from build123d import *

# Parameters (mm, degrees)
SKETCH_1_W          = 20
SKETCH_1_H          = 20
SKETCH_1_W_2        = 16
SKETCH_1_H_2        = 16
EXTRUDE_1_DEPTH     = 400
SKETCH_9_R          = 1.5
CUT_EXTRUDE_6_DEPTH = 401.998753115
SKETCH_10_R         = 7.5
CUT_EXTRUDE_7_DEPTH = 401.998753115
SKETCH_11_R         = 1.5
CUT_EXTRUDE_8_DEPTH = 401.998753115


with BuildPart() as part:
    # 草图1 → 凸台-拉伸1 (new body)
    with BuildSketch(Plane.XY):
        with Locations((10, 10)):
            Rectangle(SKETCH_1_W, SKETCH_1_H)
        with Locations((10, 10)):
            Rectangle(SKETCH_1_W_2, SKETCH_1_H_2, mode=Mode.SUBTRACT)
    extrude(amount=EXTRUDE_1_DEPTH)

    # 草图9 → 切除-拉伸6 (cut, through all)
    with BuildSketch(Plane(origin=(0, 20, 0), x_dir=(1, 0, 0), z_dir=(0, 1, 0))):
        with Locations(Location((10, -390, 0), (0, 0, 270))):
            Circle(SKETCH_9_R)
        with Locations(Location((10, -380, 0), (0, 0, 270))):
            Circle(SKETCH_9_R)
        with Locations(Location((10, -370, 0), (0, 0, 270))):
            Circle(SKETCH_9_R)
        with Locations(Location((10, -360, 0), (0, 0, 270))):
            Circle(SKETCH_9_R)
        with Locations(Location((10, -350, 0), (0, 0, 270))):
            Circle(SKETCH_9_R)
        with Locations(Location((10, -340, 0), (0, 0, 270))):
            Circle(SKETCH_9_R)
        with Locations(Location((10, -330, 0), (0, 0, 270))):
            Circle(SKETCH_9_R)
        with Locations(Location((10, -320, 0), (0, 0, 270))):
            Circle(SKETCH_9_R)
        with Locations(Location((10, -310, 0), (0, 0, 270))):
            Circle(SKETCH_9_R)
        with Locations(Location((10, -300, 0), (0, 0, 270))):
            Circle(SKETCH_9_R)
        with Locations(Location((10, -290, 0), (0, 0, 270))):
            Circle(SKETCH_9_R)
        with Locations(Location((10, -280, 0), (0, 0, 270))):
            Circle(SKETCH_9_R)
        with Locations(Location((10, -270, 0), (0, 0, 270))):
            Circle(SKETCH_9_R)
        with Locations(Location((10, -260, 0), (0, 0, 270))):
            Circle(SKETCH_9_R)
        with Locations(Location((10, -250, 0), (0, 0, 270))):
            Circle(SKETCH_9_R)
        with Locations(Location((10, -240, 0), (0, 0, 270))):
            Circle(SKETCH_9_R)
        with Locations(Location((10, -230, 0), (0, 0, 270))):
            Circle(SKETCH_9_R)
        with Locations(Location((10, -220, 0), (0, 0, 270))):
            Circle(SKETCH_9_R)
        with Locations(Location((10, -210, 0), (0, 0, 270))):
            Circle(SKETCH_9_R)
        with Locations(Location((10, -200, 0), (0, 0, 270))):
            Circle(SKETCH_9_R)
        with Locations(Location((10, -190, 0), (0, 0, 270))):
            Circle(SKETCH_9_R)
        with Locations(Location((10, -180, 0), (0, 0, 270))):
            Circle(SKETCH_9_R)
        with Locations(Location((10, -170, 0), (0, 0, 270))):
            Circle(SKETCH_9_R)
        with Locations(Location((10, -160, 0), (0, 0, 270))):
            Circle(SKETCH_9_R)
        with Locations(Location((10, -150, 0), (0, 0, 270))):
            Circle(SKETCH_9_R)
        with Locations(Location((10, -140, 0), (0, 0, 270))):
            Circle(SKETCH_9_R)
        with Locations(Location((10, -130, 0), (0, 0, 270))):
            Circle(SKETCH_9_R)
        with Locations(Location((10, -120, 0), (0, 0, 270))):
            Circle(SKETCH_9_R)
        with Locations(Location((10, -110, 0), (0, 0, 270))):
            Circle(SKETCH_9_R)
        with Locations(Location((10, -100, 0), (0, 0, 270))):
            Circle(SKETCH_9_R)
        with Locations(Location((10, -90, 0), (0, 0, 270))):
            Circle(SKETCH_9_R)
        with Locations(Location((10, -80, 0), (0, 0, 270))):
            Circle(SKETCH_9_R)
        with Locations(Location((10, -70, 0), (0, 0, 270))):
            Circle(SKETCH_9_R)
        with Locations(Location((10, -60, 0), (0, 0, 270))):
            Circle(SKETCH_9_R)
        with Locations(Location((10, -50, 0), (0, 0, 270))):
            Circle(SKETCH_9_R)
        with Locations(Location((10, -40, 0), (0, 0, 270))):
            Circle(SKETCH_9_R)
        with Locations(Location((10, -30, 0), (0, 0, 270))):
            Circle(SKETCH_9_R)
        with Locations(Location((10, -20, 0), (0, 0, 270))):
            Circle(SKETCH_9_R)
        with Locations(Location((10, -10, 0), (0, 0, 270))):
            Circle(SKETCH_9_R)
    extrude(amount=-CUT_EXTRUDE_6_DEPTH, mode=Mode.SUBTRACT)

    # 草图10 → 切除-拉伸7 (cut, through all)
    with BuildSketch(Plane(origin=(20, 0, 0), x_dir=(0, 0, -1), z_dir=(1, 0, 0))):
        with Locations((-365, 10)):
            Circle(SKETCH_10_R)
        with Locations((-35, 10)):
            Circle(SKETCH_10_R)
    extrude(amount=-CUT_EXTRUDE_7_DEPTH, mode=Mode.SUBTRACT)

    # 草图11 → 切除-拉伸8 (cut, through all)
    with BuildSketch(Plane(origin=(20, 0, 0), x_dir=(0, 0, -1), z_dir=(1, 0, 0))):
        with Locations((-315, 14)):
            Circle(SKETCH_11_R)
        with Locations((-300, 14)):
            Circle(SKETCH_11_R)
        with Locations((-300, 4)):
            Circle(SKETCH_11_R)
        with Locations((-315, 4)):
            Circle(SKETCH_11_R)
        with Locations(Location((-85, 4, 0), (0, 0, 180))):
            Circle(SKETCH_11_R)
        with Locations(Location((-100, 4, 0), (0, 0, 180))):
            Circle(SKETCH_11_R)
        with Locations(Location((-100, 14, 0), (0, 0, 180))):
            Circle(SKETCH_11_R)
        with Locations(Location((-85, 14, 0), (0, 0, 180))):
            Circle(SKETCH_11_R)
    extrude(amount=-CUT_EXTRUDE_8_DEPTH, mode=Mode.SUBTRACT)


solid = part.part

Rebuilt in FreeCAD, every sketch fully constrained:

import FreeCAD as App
import Part
import Sketcher
from FreeCAD import Vector


def add_polygon(sketch, points):
    """Adds a closed chain of lines whose ends are joined by coincident constraints."""
    first, n = sketch.GeometryCount, len(points)
    for a, b in zip(points, points[1:] + points[:1]):
        sketch.addGeometry(Part.LineSegment(App.Vector(*a, 0), App.Vector(*b, 0)), False)
    for i in range(n):
        sketch.addConstraint(Sketcher.Constraint("Coincident", first + i, 2, first + (i + 1) % n, 1))

doc = App.newDocument("Part")
params = doc.addObject("Spreadsheet::Sheet", "Params")
for row, (alias, value) in enumerate([
    ("sketch1_width", "20 mm"),
    ("sketch1_width2", "16 mm"),
    ("pad1_length", "400 mm"),
    ("sketch2_diameter", "3 mm"),
    ("sketch3_diameter", "15 mm"),
    ("sketch4_diameter", "3 mm"),
], start=1):
    params.set(f"A{row}", alias)
    params.set(f"B{row}", "=" + value)
    params.setAlias(f"B{row}", alias)

body = doc.addObject("PartDesign::Body", "Body")

sketch1 = body.newObject("Sketcher::SketchObject", "Sketch")
sketch1.AttachmentSupport = (doc.getObject("XY_Plane"), [""])
sketch1.MapMode = "FlatFace"
add_polygon(sketch1, [(0, 20), (0, 0), (20, 0), (20, 20)])
add_polygon(sketch1, [(18, 2), (2, 2), (2, 18), (18, 18)])
sketch1.addConstraint([
    Sketcher.Constraint("Vertical", 0),
    Sketcher.Constraint("Horizontal", 1),
    Sketcher.Constraint("Vertical", 2),
    Sketcher.Constraint("Horizontal", 3),
    Sketcher.Constraint("Horizontal", 4),
    Sketcher.Constraint("Vertical", 5),
    Sketcher.Constraint("Horizontal", 6),
    Sketcher.Constraint("Vertical", 7),
    Sketcher.Constraint("Coincident", 0, 2, -1, 1),
    Sketcher.Constraint("Equal", 3, 0),
    Sketcher.Constraint("Equal", 6, 5),
    Sketcher.Constraint("DistanceX", 1, 1, 1, 2, 20.0),
    Sketcher.Constraint("DistanceX", 4, 2, 4, 1, 16.0),
    Sketcher.Constraint("DistanceX", -1, 1, 4, 2, 2.0),
    Sketcher.Constraint("DistanceY", -1, 1, 4, 2, 2.0),
])
sketch1.setExpression("Constraints[19]", "Params.sketch1_width")
sketch1.setExpression("Constraints[20]", "Params.sketch1_width2")
pad1 = body.newObject("PartDesign::Pad", "Pad")
pad1.Profile = sketch1
pad1.setExpression("Length", "Params.pad1_length")

sketch2 = body.newObject("Sketcher::SketchObject", "Sketch001")
sketch2.AttachmentSupport = (doc.getObject("XZ_Plane"), [""])
sketch2.MapMode = "FlatFace"
sketch2.AttachmentOffset = App.Placement(Vector(0, 0, -20), App.Rotation())
sketch2.addGeometry([
    Part.Circle(Vector(10, 390, 0), Vector(0, 0, 1), 1.5),
    Part.Circle(Vector(10, 380, 0), Vector(0, 0, 1), 1.5),
    Part.Circle(Vector(10, 370, 0), Vector(0, 0, 1), 1.5),
    Part.Circle(Vector(10, 360, 0), Vector(0, 0, 1), 1.5),
    Part.Circle(Vector(10, 350, 0), Vector(0, 0, 1), 1.5),
    Part.Circle(Vector(10, 340, 0), Vector(0, 0, 1), 1.5),
    Part.Circle(Vector(10, 330, 0), Vector(0, 0, 1), 1.5),
    Part.Circle(Vector(10, 320, 0), Vector(0, 0, 1), 1.5),
    Part.Circle(Vector(10, 310, 0), Vector(0, 0, 1), 1.5),
    Part.Circle(Vector(10, 300, 0), Vector(0, 0, 1), 1.5),
    Part.Circle(Vector(10, 290, 0), Vector(0, 0, 1), 1.5),
    Part.Circle(Vector(10, 280, 0), Vector(0, 0, 1), 1.5),
    Part.Circle(Vector(10, 270, 0), Vector(0, 0, 1), 1.5),
    Part.Circle(Vector(10, 260, 0), Vector(0, 0, 1), 1.5),
    Part.Circle(Vector(10, 250, 0), Vector(0, 0, 1), 1.5),
    Part.Circle(Vector(10, 240, 0), Vector(0, 0, 1), 1.5),
    Part.Circle(Vector(10, 230, 0), Vector(0, 0, 1), 1.5),
    Part.Circle(Vector(10, 220, 0), Vector(0, 0, 1), 1.5),
    Part.Circle(Vector(10, 210, 0), Vector(0, 0, 1), 1.5),
    Part.Circle(Vector(10, 200, 0), Vector(0, 0, 1), 1.5),
    Part.Circle(Vector(10, 190, 0), Vector(0, 0, 1), 1.5),
    Part.Circle(Vector(10, 180, 0), Vector(0, 0, 1), 1.5),
    Part.Circle(Vector(10, 170, 0), Vector(0, 0, 1), 1.5),
    Part.Circle(Vector(10, 160, 0), Vector(0, 0, 1), 1.5),
    Part.Circle(Vector(10, 150, 0), Vector(0, 0, 1), 1.5),
    Part.Circle(Vector(10, 140, 0), Vector(0, 0, 1), 1.5),
    Part.Circle(Vector(10, 130, 0), Vector(0, 0, 1), 1.5),
    Part.Circle(Vector(10, 120, 0), Vector(0, 0, 1), 1.5),
    Part.Circle(Vector(10, 110, 0), Vector(0, 0, 1), 1.5),
    Part.Circle(Vector(10, 100, 0), Vector(0, 0, 1), 1.5),
    Part.Circle(Vector(10, 90, 0), Vector(0, 0, 1), 1.5),
    Part.Circle(Vector(10, 80, 0), Vector(0, 0, 1), 1.5),
    Part.Circle(Vector(10, 70, 0), Vector(0, 0, 1), 1.5),
    Part.Circle(Vector(10, 60, 0), Vector(0, 0, 1), 1.5),
    Part.Circle(Vector(10, 50, 0), Vector(0, 0, 1), 1.5),
    Part.Circle(Vector(10, 40, 0), Vector(0, 0, 1), 1.5),
    Part.Circle(Vector(10, 30, 0), Vector(0, 0, 1), 1.5),
    Part.Circle(Vector(10, 20, 0), Vector(0, 0, 1), 1.5),
    Part.Circle(Vector(10, 10, 0), Vector(0, 0, 1), 1.5),
], False)
sketch2.addConstraint([
    Sketcher.Constraint("Equal", 0, 1),
    Sketcher.Constraint("Equal", 1, 2),
    Sketcher.Constraint("Equal", 2, 3),
    Sketcher.Constraint("Equal", 3, 4),
    Sketcher.Constraint("Equal", 4, 5),
    Sketcher.Constraint("Equal", 5, 6),
    Sketcher.Constraint("Equal", 6, 7),
    Sketcher.Constraint("Equal", 7, 8),
    Sketcher.Constraint("Equal", 8, 9),
    Sketcher.Constraint("Equal", 9, 10),
    Sketcher.Constraint("Equal", 10, 11),
    Sketcher.Constraint("Equal", 11, 12),
    Sketcher.Constraint("Equal", 12, 13),
    Sketcher.Constraint("Equal", 13, 14),
    Sketcher.Constraint("Equal", 14, 15),
    Sketcher.Constraint("Equal", 15, 16),
    Sketcher.Constraint("Equal", 16, 17),
    Sketcher.Constraint("Equal", 17, 18),
    Sketcher.Constraint("Equal", 18, 19),
    Sketcher.Constraint("Equal", 19, 20),
    Sketcher.Constraint("Equal", 20, 21),
    Sketcher.Constraint("Equal", 21, 22),
    Sketcher.Constraint("Equal", 22, 23),
    Sketcher.Constraint("Equal", 23, 24),
    Sketcher.Constraint("Equal", 24, 25),
    Sketcher.Constraint("Equal", 25, 26),
    Sketcher.Constraint("Equal", 26, 27),
    Sketcher.Constraint("Equal", 27, 28),
    Sketcher.Constraint("Equal", 28, 29),
    Sketcher.Constraint("Equal", 29, 30),
    Sketcher.Constraint("Equal", 30, 31),
    Sketcher.Constraint("Equal", 31, 32),
    Sketcher.Constraint("Equal", 32, 33),
    Sketcher.Constraint("Equal", 33, 34),
    Sketcher.Constraint("Equal", 34, 35),
    Sketcher.Constraint("Equal", 35, 36),
    Sketcher.Constraint("Equal", 36, 37),
    Sketcher.Constraint("Equal", 37, 38),
    Sketcher.Constraint("Vertical", 0, 3, 1, 3),
    Sketcher.Constraint("Vertical", 1, 3, 2, 3),
    Sketcher.Constraint("Vertical", 2, 3, 3, 3),
    Sketcher.Constraint("Vertical", 3, 3, 4, 3),
    Sketcher.Constraint("Vertical", 4, 3, 5, 3),
    Sketcher.Constraint("Vertical", 5, 3, 6, 3),
    Sketcher.Constraint("Vertical", 6, 3, 7, 3),
    Sketcher.Constraint("Vertical", 7, 3, 8, 3),
    Sketcher.Constraint("Vertical", 8, 3, 9, 3),
    Sketcher.Constraint("Vertical", 9, 3, 10, 3),
    Sketcher.Constraint("Vertical", 10, 3, 11, 3),
    Sketcher.Constraint("Vertical", 11, 3, 12, 3),
    Sketcher.Constraint("Vertical", 12, 3, 13, 3),
    Sketcher.Constraint("Vertical", 13, 3, 14, 3),
    Sketcher.Constraint("Vertical", 14, 3, 15, 3),
    Sketcher.Constraint("Vertical", 15, 3, 16, 3),
    Sketcher.Constraint("Vertical", 16, 3, 17, 3),
    Sketcher.Constraint("Vertical", 17, 3, 18, 3),
    Sketcher.Constraint("Vertical", 18, 3, 19, 3),
    Sketcher.Constraint("Vertical", 19, 3, 20, 3),
    Sketcher.Constraint("Vertical", 20, 3, 21, 3),
    Sketcher.Constraint("Vertical", 21, 3, 22, 3),
    Sketcher.Constraint("Vertical", 22, 3, 23, 3),
    Sketcher.Constraint("Vertical", 23, 3, 24, 3),
    Sketcher.Constraint("Vertical", 24, 3, 25, 3),
    Sketcher.Constraint("Vertical", 25, 3, 26, 3),
    Sketcher.Constraint("Vertical", 26, 3, 27, 3),
    Sketcher.Constraint("Vertical", 27, 3, 28, 3),
    Sketcher.Constraint("Vertical", 28, 3, 29, 3),
    Sketcher.Constraint("Vertical", 29, 3, 30, 3),
    Sketcher.Constraint("Vertical", 30, 3, 31, 3),
    Sketcher.Constraint("Vertical", 31, 3, 32, 3),
    Sketcher.Constraint("Vertical", 32, 3, 33, 3),
    Sketcher.Constraint("Vertical", 33, 3, 34, 3),
    Sketcher.Constraint("Vertical", 34, 3, 35, 3),
    Sketcher.Constraint("Vertical", 35, 3, 36, 3),
    Sketcher.Constraint("Vertical", 36, 3, 37, 3),
    Sketcher.Constraint("Vertical", 37, 3, 38, 3),
    Sketcher.Constraint("Diameter", 0, 3.0),
    Sketcher.Constraint("DistanceX", -1, 1, 0, 3, 10.0),
    Sketcher.Constraint("DistanceY", -1, 1, 0, 3, 390.0),
    Sketcher.Constraint("DistanceY", -1, 1, 1, 3, 380.0),
    Sketcher.Constraint("DistanceY", -1, 1, 2, 3, 370.0),
    Sketcher.Constraint("DistanceY", -1, 1, 3, 3, 360.0),
    Sketcher.Constraint("DistanceY", -1, 1, 4, 3, 350.0),
    Sketcher.Constraint("DistanceY", -1, 1, 5, 3, 340.0),
    Sketcher.Constraint("DistanceY", -1, 1, 6, 3, 330.0),
    Sketcher.Constraint("DistanceY", -1, 1, 7, 3, 320.0),
    Sketcher.Constraint("DistanceY", -1, 1, 8, 3, 310.0),
    Sketcher.Constraint("DistanceY", -1, 1, 9, 3, 300.0),
    Sketcher.Constraint("DistanceY", -1, 1, 10, 3, 290.0),
    Sketcher.Constraint("DistanceY", -1, 1, 11, 3, 280.0),
    Sketcher.Constraint("DistanceY", -1, 1, 12, 3, 270.0),
    Sketcher.Constraint("DistanceY", -1, 1, 13, 3, 260.0),
    Sketcher.Constraint("DistanceY", -1, 1, 14, 3, 250.0),
    Sketcher.Constraint("DistanceY", -1, 1, 15, 3, 240.0),
    Sketcher.Constraint("DistanceY", -1, 1, 16, 3, 230.0),
    Sketcher.Constraint("DistanceY", -1, 1, 17, 3, 220.0),
    Sketcher.Constraint("DistanceY", -1, 1, 18, 3, 210.0),
    Sketcher.Constraint("DistanceY", -1, 1, 19, 3, 200.0),
    Sketcher.Constraint("DistanceY", -1, 1, 20, 3, 190.0),
    Sketcher.Constraint("DistanceY", -1, 1, 21, 3, 180.0),
    Sketcher.Constraint("DistanceY", -1, 1, 22, 3, 170.0),
    Sketcher.Constraint("DistanceY", -1, 1, 23, 3, 160.0),
    Sketcher.Constraint("DistanceY", -1, 1, 24, 3, 150.0),
    Sketcher.Constraint("DistanceY", -1, 1, 25, 3, 140.0),
    Sketcher.Constraint("DistanceY", -1, 1, 26, 3, 130.0),
    Sketcher.Constraint("DistanceY", -1, 1, 27, 3, 120.0),
    Sketcher.Constraint("DistanceY", -1, 1, 28, 3, 110.0),
    Sketcher.Constraint("DistanceY", -1, 1, 29, 3, 100.0),
    Sketcher.Constraint("DistanceY", -1, 1, 30, 3, 90.0),
    Sketcher.Constraint("DistanceY", -1, 1, 31, 3, 80.0),
    Sketcher.Constraint("DistanceY", -1, 1, 32, 3, 70.0),
    Sketcher.Constraint("DistanceY", -1, 1, 33, 3, 60.0),
    Sketcher.Constraint("DistanceY", -1, 1, 34, 3, 50.0),
    Sketcher.Constraint("DistanceY", -1, 1, 35, 3, 40.0),
    Sketcher.Constraint("DistanceY", -1, 1, 36, 3, 30.0),
    Sketcher.Constraint("DistanceY", -1, 1, 37, 3, 20.0),
    Sketcher.Constraint("DistanceY", -1, 1, 38, 3, 10.0),
])
sketch2.setExpression("Constraints[76]", "Params.sketch2_diameter")
pocket1 = body.newObject("PartDesign::Pocket", "Pocket")
pocket1.Profile = sketch2
pocket1.Type = "ThroughAll"
pocket1.Reversed = True

sketch3 = body.newObject("Sketcher::SketchObject", "Sketch002")
sketch3.AttachmentSupport = (doc.getObject("YZ_Plane"), [""])
sketch3.MapMode = "FlatFace"
sketch3.AttachmentOffset = App.Placement(Vector(0, 0, 20), App.Rotation())
sketch3.addGeometry([
    Part.Circle(Vector(10, 365, 0), Vector(0, 0, 1), 8),
    Part.Circle(Vector(10, 35, 0), Vector(0, 0, 1), 8),
], False)
sketch3.addConstraint([
    Sketcher.Constraint("Equal", 0, 1),
    Sketcher.Constraint("Vertical", 0, 3, 1, 3),
    Sketcher.Constraint("Diameter", 0, 15.0),
    Sketcher.Constraint("DistanceX", -1, 1, 0, 3, 10.0),
    Sketcher.Constraint("DistanceY", -1, 1, 0, 3, 365.0),
    Sketcher.Constraint("DistanceY", -1, 1, 1, 3, 35.0),
])
sketch3.setExpression("Constraints[2]", "Params.sketch3_diameter")
pocket2 = body.newObject("PartDesign::Pocket", "Pocket001")
pocket2.Profile = sketch3
pocket2.Type = "ThroughAll"

sketch4 = body.newObject("Sketcher::SketchObject", "Sketch003")
sketch4.AttachmentSupport = (doc.getObject("YZ_Plane"), [""])
sketch4.MapMode = "FlatFace"
sketch4.AttachmentOffset = App.Placement(Vector(0, 0, 20), App.Rotation())
sketch4.addGeometry([
    Part.Circle(Vector(14, 315, 0), Vector(0, 0, 1), 1.5),
    Part.Circle(Vector(14, 300, 0), Vector(0, 0, 1), 1.5),
    Part.Circle(Vector(4, 300, 0), Vector(0, 0, 1), 1.5),
    Part.Circle(Vector(4, 315, 0), Vector(0, 0, 1), 1.5),
    Part.Circle(Vector(4, 85, 0), Vector(0, 0, 1), 1.5),
    Part.Circle(Vector(4, 100, 0), Vector(0, 0, 1), 1.5),
    Part.Circle(Vector(14, 100, 0), Vector(0, 0, 1), 1.5),
    Part.Circle(Vector(14, 85, 0), Vector(0, 0, 1), 1.5),
], False)
sketch4.addConstraint([
    Sketcher.Constraint("Equal", 0, 1),
    Sketcher.Constraint("Equal", 1, 2),
    Sketcher.Constraint("Equal", 2, 3),
    Sketcher.Constraint("Equal", 3, 4),
    Sketcher.Constraint("Equal", 4, 5),
    Sketcher.Constraint("Equal", 5, 6),
    Sketcher.Constraint("Equal", 6, 7),
    Sketcher.Constraint("Horizontal", 1, 3, 2, 3),
    Sketcher.Constraint("Horizontal", 0, 3, 3, 3),
    Sketcher.Constraint("Horizontal", 5, 3, 6, 3),
    Sketcher.Constraint("Horizontal", 4, 3, 7, 3),
    Sketcher.Constraint("Vertical", 0, 3, 1, 3),
    Sketcher.Constraint("Vertical", 2, 3, 3, 3),
    Sketcher.Constraint("Vertical", 3, 3, 4, 3),
    Sketcher.Constraint("Vertical", 4, 3, 5, 3),
    Sketcher.Constraint("Vertical", 1, 3, 6, 3),
    Sketcher.Constraint("Vertical", 6, 3, 7, 3),
    Sketcher.Constraint("Diameter", 0, 3.0),
    Sketcher.Constraint("DistanceX", -1, 1, 0, 3, 14.0),
    Sketcher.Constraint("DistanceY", -1, 1, 0, 3, 315.0),
    Sketcher.Constraint("DistanceY", -1, 1, 1, 3, 300.0),
    Sketcher.Constraint("DistanceX", -1, 1, 2, 3, 4.0),
    Sketcher.Constraint("DistanceY", -1, 1, 4, 3, 85.0),
    Sketcher.Constraint("DistanceY", -1, 1, 5, 3, 100.0),
])
sketch4.setExpression("Constraints[17]", "Params.sketch4_diameter")
pocket3 = body.newObject("PartDesign::Pocket", "Pocket002")
pocket3.Profile = sketch4
pocket3.Type = "ThroughAll"

doc.recompute()
